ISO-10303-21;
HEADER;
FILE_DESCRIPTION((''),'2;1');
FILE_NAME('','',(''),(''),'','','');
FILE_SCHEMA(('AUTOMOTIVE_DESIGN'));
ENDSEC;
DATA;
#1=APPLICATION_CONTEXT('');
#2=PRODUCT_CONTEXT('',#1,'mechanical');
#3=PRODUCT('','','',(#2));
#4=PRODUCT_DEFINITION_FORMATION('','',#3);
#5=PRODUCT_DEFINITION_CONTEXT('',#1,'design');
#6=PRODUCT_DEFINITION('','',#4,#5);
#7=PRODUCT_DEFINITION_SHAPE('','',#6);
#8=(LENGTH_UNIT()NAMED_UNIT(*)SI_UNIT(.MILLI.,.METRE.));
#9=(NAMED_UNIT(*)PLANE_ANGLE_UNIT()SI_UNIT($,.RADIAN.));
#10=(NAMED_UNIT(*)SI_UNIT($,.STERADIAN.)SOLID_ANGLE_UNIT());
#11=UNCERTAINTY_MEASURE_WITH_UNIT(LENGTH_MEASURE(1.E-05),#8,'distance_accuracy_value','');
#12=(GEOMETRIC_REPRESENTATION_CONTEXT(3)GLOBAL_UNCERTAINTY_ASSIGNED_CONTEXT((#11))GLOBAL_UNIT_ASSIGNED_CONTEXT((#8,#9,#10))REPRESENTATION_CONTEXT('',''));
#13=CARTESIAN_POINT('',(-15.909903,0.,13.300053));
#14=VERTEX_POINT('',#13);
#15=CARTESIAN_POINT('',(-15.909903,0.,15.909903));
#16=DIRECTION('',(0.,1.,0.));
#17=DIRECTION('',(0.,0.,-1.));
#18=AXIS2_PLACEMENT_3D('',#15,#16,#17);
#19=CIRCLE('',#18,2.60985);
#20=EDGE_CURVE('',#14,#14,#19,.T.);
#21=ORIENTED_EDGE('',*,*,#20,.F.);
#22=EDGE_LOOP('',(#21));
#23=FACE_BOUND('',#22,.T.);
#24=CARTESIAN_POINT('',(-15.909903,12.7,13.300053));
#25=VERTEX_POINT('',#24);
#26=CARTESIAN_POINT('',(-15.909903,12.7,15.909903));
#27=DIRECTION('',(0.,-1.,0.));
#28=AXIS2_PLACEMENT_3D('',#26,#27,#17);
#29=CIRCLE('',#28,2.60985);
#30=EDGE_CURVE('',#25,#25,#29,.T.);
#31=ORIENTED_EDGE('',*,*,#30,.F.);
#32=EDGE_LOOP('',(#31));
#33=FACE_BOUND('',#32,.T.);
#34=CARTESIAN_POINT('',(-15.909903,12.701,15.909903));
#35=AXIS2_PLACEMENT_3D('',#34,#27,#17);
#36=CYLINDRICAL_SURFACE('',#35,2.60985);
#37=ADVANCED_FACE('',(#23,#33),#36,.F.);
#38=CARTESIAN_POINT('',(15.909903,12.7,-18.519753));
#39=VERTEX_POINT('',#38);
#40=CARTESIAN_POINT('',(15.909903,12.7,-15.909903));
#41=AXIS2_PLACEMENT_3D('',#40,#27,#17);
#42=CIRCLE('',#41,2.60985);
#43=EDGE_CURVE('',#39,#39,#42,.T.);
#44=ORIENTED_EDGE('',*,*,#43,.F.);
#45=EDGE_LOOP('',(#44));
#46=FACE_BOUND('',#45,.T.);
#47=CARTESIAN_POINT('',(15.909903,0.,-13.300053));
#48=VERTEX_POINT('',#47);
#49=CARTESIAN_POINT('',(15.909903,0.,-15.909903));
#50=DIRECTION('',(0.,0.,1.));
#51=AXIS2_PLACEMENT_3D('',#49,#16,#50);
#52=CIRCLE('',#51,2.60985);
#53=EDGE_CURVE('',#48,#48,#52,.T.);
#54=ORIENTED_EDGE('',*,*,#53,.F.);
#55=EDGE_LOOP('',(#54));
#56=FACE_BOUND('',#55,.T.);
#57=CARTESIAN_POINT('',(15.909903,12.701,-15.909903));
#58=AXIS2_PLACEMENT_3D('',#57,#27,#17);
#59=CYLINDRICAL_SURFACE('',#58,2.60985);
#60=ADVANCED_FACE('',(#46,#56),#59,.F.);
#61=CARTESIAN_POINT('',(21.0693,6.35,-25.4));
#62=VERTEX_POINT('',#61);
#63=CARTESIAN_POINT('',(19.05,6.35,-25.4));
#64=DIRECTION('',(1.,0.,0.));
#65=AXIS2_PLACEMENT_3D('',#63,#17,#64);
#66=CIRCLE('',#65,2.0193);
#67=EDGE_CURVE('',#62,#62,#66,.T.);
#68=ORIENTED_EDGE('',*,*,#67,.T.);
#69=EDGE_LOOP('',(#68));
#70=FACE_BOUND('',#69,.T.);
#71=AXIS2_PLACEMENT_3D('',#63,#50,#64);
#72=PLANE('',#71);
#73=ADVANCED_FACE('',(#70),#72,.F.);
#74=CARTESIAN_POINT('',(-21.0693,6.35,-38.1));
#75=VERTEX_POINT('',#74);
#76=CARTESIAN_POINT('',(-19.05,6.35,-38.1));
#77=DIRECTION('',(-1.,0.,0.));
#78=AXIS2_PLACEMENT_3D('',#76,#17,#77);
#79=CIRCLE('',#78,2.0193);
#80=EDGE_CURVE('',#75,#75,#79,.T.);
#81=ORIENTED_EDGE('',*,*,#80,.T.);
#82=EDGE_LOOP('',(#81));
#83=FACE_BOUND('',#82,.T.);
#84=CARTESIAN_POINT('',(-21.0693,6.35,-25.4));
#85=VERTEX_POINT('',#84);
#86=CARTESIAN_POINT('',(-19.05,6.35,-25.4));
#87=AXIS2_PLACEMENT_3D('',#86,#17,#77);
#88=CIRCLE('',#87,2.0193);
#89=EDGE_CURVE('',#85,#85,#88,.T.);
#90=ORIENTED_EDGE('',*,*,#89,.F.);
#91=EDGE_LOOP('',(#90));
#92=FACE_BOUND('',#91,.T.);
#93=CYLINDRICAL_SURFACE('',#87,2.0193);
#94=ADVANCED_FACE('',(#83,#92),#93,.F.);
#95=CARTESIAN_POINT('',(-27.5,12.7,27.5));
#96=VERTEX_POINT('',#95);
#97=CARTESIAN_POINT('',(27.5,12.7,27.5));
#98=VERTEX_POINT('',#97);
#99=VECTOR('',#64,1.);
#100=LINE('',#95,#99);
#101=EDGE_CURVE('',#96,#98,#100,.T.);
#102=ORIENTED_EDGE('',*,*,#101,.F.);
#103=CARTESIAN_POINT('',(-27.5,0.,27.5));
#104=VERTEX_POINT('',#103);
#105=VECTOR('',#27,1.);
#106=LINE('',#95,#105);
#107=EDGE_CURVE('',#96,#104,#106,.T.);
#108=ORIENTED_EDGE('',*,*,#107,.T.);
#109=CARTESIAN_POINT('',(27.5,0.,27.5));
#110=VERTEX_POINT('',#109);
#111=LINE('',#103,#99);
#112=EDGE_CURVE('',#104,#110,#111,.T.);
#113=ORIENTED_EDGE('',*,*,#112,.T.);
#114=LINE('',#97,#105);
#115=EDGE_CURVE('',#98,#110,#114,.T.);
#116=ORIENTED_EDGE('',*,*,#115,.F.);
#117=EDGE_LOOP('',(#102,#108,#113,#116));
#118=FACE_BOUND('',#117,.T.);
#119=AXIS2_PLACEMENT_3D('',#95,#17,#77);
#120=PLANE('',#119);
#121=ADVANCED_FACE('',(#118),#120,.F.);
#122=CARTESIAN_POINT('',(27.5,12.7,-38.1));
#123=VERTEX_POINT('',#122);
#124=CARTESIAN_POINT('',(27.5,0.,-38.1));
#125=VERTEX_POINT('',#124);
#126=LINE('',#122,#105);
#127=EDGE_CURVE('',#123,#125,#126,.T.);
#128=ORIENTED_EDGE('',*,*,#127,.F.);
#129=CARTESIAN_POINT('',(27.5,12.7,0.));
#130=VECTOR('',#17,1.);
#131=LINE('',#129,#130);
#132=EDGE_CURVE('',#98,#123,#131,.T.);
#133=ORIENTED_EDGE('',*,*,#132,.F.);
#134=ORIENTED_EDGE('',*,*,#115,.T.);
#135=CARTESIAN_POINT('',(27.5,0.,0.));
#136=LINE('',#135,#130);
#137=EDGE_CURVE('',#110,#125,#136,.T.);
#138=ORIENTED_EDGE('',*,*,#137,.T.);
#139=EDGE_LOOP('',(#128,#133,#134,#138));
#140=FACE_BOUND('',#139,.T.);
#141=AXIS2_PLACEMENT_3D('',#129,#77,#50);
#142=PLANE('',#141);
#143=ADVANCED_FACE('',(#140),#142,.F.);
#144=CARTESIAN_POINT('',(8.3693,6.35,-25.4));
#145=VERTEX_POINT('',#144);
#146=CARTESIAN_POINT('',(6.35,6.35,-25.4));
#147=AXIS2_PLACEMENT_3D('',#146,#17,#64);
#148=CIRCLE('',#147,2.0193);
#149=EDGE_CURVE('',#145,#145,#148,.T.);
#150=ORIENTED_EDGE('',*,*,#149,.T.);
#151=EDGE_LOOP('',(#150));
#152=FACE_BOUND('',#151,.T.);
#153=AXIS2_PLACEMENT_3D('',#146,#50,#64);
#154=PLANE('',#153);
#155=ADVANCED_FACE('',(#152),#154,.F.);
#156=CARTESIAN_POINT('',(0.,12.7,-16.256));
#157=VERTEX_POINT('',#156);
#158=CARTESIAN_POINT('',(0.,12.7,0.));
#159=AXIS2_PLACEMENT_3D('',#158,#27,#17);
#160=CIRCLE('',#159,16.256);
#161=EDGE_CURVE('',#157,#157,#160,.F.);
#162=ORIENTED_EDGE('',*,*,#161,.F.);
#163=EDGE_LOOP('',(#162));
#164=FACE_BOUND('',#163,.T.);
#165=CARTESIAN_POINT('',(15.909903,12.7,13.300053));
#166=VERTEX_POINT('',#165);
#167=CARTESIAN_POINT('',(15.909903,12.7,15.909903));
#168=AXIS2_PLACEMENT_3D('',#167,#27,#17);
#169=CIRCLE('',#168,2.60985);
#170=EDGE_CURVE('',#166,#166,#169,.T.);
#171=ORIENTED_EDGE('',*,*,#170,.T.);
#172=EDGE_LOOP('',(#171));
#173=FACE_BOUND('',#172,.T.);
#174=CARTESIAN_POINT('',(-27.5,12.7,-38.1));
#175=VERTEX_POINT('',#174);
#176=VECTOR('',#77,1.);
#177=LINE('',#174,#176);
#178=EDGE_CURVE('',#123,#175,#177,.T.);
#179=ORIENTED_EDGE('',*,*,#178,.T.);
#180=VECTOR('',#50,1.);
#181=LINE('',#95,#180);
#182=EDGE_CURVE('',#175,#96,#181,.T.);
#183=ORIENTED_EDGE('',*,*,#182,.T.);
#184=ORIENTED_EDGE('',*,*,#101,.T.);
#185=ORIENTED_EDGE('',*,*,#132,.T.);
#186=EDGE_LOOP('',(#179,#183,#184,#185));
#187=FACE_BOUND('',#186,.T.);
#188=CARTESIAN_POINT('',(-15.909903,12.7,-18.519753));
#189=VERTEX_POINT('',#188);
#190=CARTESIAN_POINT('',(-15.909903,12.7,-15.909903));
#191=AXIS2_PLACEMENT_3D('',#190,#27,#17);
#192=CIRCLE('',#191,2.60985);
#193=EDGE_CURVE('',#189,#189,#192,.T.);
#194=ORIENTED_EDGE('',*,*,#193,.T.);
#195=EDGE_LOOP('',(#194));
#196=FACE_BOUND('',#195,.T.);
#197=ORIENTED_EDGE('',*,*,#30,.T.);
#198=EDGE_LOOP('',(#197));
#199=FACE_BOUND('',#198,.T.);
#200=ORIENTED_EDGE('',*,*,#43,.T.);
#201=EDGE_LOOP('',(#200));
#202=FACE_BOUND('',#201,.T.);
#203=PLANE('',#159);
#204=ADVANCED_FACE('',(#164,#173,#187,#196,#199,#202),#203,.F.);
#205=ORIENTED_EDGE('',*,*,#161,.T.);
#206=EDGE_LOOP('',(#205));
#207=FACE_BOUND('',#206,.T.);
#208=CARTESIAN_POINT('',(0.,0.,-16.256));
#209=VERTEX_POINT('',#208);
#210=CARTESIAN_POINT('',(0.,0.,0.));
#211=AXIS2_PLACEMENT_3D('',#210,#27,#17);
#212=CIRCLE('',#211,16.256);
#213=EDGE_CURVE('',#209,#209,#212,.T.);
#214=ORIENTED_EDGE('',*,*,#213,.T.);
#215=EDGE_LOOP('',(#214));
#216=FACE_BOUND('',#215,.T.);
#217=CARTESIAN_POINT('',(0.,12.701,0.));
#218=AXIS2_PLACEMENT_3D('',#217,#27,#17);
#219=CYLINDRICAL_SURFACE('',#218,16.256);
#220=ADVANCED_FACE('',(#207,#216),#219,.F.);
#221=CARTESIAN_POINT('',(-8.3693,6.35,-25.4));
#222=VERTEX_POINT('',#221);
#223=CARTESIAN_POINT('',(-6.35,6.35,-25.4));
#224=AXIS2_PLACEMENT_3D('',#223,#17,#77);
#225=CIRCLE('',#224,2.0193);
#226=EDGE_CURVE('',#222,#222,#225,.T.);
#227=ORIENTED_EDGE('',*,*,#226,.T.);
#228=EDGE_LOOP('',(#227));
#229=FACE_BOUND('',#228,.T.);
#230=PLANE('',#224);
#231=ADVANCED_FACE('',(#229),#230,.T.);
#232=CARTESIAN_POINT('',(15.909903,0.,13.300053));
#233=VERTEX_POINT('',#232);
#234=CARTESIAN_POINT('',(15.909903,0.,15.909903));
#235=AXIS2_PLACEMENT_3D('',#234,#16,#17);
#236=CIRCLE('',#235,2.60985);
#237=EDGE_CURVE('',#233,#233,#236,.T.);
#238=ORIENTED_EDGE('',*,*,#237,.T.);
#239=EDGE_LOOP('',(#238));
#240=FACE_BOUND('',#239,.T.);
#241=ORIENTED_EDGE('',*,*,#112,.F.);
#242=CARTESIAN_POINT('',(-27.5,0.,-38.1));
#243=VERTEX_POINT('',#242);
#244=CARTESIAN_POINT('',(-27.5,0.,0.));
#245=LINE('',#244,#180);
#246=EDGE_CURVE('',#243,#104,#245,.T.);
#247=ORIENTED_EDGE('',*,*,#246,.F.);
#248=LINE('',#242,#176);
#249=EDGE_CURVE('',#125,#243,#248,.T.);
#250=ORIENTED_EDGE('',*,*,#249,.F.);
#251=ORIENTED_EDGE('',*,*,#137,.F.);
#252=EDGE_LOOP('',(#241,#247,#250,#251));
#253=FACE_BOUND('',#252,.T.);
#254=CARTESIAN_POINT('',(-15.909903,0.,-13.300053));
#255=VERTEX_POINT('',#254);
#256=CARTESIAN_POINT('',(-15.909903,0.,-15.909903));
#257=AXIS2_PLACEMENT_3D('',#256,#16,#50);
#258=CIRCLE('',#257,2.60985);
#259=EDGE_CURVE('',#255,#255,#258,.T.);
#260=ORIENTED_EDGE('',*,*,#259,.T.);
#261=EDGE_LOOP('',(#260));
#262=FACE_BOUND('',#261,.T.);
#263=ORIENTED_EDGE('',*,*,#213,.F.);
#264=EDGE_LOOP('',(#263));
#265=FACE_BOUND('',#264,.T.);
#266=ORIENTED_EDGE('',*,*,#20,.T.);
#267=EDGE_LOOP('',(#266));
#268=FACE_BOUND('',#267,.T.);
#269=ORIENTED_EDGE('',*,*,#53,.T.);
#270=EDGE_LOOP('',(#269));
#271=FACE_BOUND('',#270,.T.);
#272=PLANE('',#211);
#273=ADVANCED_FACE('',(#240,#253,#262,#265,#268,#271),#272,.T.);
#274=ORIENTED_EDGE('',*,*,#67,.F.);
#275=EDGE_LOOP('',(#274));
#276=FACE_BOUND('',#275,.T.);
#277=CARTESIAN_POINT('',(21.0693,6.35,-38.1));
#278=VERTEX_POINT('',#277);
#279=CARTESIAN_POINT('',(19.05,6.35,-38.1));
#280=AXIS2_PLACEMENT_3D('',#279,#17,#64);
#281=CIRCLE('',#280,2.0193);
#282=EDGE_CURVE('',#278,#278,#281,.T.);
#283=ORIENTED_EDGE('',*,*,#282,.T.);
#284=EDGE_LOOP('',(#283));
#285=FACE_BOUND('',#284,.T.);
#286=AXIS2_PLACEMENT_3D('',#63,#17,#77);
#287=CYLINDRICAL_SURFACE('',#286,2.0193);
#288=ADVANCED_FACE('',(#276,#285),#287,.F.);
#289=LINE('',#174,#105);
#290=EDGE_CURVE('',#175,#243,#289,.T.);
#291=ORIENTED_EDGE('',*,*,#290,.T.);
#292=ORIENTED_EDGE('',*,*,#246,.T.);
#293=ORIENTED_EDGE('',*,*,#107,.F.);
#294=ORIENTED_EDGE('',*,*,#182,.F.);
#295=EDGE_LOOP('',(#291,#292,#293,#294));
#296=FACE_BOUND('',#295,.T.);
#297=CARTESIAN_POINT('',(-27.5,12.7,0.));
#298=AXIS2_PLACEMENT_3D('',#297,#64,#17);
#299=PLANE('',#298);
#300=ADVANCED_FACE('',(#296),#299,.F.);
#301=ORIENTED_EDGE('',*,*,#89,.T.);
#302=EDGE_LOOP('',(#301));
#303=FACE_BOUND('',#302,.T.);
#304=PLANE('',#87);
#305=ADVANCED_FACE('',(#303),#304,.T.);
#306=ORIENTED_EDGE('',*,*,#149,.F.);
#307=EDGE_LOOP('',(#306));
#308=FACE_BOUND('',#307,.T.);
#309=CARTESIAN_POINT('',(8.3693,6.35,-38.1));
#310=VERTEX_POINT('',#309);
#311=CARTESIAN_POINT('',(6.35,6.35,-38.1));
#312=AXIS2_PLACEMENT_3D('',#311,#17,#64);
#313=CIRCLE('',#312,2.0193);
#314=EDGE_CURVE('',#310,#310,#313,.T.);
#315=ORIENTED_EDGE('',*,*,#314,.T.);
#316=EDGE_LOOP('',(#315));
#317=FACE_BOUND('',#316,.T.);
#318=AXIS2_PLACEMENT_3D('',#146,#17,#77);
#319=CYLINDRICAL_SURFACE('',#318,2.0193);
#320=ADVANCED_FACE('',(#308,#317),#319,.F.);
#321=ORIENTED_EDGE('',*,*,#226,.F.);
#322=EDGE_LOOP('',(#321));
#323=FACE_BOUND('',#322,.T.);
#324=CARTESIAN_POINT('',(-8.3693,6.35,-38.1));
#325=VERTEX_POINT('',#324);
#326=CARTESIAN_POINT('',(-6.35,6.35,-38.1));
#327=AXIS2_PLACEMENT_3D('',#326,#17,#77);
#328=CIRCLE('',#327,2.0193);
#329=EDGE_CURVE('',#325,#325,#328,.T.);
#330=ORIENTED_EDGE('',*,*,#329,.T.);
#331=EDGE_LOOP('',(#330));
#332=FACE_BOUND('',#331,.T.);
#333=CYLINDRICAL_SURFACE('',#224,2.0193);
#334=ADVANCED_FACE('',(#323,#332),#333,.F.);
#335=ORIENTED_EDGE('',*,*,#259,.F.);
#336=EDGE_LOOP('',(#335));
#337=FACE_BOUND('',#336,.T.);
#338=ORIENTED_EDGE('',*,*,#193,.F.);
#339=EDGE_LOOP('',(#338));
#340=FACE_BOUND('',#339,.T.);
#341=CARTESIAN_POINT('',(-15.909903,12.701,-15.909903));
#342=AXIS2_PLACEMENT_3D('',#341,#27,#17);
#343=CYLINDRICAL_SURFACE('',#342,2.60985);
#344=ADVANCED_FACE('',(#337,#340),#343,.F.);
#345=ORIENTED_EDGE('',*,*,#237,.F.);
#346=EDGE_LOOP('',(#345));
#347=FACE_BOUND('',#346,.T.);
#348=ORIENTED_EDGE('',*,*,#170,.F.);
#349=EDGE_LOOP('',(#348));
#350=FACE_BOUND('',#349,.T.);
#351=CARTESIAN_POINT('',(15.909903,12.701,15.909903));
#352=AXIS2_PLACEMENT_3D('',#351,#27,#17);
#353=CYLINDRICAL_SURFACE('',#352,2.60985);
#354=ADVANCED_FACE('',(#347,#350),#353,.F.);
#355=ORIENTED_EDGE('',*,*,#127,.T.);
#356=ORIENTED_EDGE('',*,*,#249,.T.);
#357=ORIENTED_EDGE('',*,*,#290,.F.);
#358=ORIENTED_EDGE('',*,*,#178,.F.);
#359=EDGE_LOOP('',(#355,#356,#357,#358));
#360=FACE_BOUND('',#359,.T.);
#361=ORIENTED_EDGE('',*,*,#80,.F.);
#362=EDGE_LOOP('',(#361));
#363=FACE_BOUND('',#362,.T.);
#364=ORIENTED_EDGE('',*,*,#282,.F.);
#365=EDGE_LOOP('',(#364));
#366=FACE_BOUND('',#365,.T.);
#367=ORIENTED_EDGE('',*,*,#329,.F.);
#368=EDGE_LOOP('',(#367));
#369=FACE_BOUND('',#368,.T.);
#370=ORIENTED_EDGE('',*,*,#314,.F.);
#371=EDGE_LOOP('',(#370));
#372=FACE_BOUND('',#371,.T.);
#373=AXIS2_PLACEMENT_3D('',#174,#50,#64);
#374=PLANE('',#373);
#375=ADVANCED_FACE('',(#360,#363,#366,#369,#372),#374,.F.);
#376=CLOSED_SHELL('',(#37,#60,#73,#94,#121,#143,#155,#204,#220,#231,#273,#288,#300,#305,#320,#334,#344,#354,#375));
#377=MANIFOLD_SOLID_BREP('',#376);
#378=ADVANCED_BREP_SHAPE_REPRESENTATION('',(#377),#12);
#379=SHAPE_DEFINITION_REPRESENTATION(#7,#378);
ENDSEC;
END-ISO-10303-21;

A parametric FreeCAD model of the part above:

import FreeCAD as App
import Part
import Sketcher

V = App.Vector
Q = App.Units.Quantity


def add_polygon(sketch, points):
    """Adds a closed chain of lines whose ends are joined by coincident constraints."""
    first, n = sketch.GeometryCount, len(points)
    for a, b in zip(points, points[1:] + points[:1]):
        sketch.addGeometry(Part.LineSegment(App.Vector(*a, 0), App.Vector(*b, 0)), False)
    for i in range(n):
        sketch.addConstraint(Sketcher.Constraint("Coincident", first + i, 2, first + (i + 1) % n, 1))

doc = App.newDocument("Part")
body = doc.addObject("PartDesign::Body", "Body")

sketch1 = body.newObject("Sketcher::SketchObject", "Sketch")
sketch1.AttachmentSupport = (doc.getObject("XZ_Plane"), [""])
sketch1.MapMode = "FlatFace"
add_polygon(sketch1, [(-28, -38), (-28, 28), (28, 28), (28, -38)])
sketch1.addConstraint([
    Sketcher.Constraint("Vertical", 0),
    Sketcher.Constraint("Horizontal", 1),
    Sketcher.Constraint("Vertical", 2),
    Sketcher.Constraint("Horizontal", 3),
    Sketcher.Constraint("DistanceY", 2, 2, -1, 1, Q("1.5 in")),
    Sketcher.Constraint("DistanceX", 1, 1, 1, 2, Q("55 mm")),
    Sketcher.Constraint("DistanceY", 0, 1, 0, 2, Q("65.6 mm")),
    Sketcher.Constraint("DistanceX", 0, 2, -1, 1, Q("27.5 mm")),
])
pad1 = body.newObject("PartDesign::Pad", "Pad")
pad1.Profile = sketch1
pad1.Length = Q("0.5 in")
pad1.Reversed = True

sketch2 = body.newObject("Sketcher::SketchObject", "Sketch001")
sketch2.AttachmentSupport = (doc.getObject("XZ_Plane"), [""])
sketch2.MapMode = "FlatFace"
sketch2.addGeometry(Part.Circle(V(15.9, -15.9, 0), V(0, 0, 1), 2.6), False)
sketch2.addConstraint([
    Sketcher.Constraint("Diameter", 0, Q("0.2055 in")),
    Sketcher.Constraint("DistanceX", -1, 1, 0, 3, Q("15.909903 mm")),
    Sketcher.Constraint("DistanceY", 0, 3, -1, 1, Q("15.909903 mm")),
])
pocket1 = body.newObject("PartDesign::Pocket", "Pocket")
pocket1.Profile = sketch2
pocket1.Type = "UpToFirst"

sketch3 = body.newObject("Sketcher::SketchObject", "Sketch002")
sketch3.AttachmentSupport = (doc.getObject("XZ_Plane"), [""])
sketch3.MapMode = "FlatFace"
sketch3.addGeometry(Part.Circle(V(-15.9, -15.9, 0), V(0, 0, 1), 2.6), False)
sketch3.addConstraint([
    Sketcher.Constraint("Diameter", 0, Q("0.2055 in")),
    Sketcher.Constraint("DistanceX", 0, 3, -1, 1, Q("15.909903 mm")),
    Sketcher.Constraint("DistanceY", 0, 3, -1, 1, Q("15.909903 mm")),
])
pocket2 = body.newObject("PartDesign::Pocket", "Pocket001")
pocket2.Profile = sketch3
pocket2.Type = "UpToFirst"

sketch4 = body.newObject("Sketcher::SketchObject", "Sketch003")
sketch4.AttachmentSupport = (doc.getObject("XZ_Plane"), [""])
sketch4.MapMode = "FlatFace"
sketch4.addGeometry(Part.Circle(V(15.9, 15.9, 0), V(0, 0, 1), 2.6), False)
sketch4.addConstraint([
    Sketcher.Constraint("Diameter", 0, Q("0.2055 in")),
    Sketcher.Constraint("DistanceX", -1, 1, 0, 3, Q("15.909903 mm")),
    Sketcher.Constraint("DistanceY", -1, 1, 0, 3, Q("15.909903 mm")),
])
pocket3 = body.newObject("PartDesign::Pocket", "Pocket002")
pocket3.Profile = sketch4
pocket3.Type = "UpToFirst"

sketch5 = body.newObject("Sketcher::SketchObject", "Sketch004")
sketch5.AttachmentSupport = (doc.getObject("XZ_Plane"), [""])
sketch5.MapMode = "FlatFace"
sketch5.addGeometry(Part.Circle(V(-15.9, 15.9, 0), V(0, 0, 1), 2.6), False)
sketch5.addConstraint([
    Sketcher.Constraint("Diameter", 0, Q("0.2055 in")),
    Sketcher.Constraint("DistanceX", 0, 3, -1, 1, Q("15.909903 mm")),
    Sketcher.Constraint("DistanceY", -1, 1, 0, 3, Q("15.909903 mm")),
])
pocket4 = body.newObject("PartDesign::Pocket", "Pocket003")
pocket4.Profile = sketch5
pocket4.Type = "UpToFirst"

sketch6 = body.newObject("Sketcher::SketchObject", "Sketch005")
sketch6.AttachmentSupport = (doc.getObject("XZ_Plane"), [""])
sketch6.MapMode = "FlatFace"
sketch6.addGeometry(Part.Circle(V(0, 0, 0), V(0, 0, 1), 16), False)
sketch6.addConstraint([
    Sketcher.Constraint("Coincident", 0, 3, -1, 1),
    Sketcher.Constraint("Diameter", 0, Q("1.28 in")),
])
pocket5 = body.newObject("PartDesign::Pocket", "Pocket004")
pocket5.Profile = sketch6
pocket5.Type = "UpToFirst"

sketch7 = body.newObject("Sketcher::SketchObject", "Sketch006")
sketch7.AttachmentSupport = (doc.getObject("XY_Plane"), [""])
sketch7.MapMode = "FlatFace"
sketch7.AttachmentOffset = App.Placement(V(0, 0, -1.5 * 25.4), App.Rotation())
sketch7.addGeometry([
    Part.Circle(V(-6.3, 6.3, 0), V(0, 0, 1), 2),
    Part.Circle(V(-19.1, 6.3, 0), V(0, 0, 1), 2),
    Part.Circle(V(19.1, 6.3, 0), V(0, 0, 1), 2),
    Part.Circle(V(6.3, 6.3, 0), V(0, 0, 1), 2),
], False)
sketch7.addConstraint([
    Sketcher.Constraint("Equal", 0, 1),
    Sketcher.Constraint("Equal", 1, 2),
    Sketcher.Constraint("Equal", 2, 3),
    Sketcher.Constraint("Symmetric", 1, 3, 2, 3, -2),
    Sketcher.Constraint("Symmetric", 0, 3, 3, 3, -2),
    Sketcher.Constraint("Horizontal", 0, 3, 1, 3),
    Sketcher.Constraint("Diameter", 0, Q("0.159 in")),
    Sketcher.Constraint("DistanceX", 0, 3, 2, 3, Q("1 in")),
    Sketcher.Constraint("DistanceX", 1, 3, 0, 3, Q("0.5 in")),
    Sketcher.Constraint("DistanceY", -1, 1, 0, 3, Q("0.25 in")),
])
pocket6 = body.newObject("PartDesign::Pocket", "Pocket005")
pocket6.Profile = sketch7
pocket6.Length = Q("0.5 in")
pocket6.Reversed = True

doc.recompute()
